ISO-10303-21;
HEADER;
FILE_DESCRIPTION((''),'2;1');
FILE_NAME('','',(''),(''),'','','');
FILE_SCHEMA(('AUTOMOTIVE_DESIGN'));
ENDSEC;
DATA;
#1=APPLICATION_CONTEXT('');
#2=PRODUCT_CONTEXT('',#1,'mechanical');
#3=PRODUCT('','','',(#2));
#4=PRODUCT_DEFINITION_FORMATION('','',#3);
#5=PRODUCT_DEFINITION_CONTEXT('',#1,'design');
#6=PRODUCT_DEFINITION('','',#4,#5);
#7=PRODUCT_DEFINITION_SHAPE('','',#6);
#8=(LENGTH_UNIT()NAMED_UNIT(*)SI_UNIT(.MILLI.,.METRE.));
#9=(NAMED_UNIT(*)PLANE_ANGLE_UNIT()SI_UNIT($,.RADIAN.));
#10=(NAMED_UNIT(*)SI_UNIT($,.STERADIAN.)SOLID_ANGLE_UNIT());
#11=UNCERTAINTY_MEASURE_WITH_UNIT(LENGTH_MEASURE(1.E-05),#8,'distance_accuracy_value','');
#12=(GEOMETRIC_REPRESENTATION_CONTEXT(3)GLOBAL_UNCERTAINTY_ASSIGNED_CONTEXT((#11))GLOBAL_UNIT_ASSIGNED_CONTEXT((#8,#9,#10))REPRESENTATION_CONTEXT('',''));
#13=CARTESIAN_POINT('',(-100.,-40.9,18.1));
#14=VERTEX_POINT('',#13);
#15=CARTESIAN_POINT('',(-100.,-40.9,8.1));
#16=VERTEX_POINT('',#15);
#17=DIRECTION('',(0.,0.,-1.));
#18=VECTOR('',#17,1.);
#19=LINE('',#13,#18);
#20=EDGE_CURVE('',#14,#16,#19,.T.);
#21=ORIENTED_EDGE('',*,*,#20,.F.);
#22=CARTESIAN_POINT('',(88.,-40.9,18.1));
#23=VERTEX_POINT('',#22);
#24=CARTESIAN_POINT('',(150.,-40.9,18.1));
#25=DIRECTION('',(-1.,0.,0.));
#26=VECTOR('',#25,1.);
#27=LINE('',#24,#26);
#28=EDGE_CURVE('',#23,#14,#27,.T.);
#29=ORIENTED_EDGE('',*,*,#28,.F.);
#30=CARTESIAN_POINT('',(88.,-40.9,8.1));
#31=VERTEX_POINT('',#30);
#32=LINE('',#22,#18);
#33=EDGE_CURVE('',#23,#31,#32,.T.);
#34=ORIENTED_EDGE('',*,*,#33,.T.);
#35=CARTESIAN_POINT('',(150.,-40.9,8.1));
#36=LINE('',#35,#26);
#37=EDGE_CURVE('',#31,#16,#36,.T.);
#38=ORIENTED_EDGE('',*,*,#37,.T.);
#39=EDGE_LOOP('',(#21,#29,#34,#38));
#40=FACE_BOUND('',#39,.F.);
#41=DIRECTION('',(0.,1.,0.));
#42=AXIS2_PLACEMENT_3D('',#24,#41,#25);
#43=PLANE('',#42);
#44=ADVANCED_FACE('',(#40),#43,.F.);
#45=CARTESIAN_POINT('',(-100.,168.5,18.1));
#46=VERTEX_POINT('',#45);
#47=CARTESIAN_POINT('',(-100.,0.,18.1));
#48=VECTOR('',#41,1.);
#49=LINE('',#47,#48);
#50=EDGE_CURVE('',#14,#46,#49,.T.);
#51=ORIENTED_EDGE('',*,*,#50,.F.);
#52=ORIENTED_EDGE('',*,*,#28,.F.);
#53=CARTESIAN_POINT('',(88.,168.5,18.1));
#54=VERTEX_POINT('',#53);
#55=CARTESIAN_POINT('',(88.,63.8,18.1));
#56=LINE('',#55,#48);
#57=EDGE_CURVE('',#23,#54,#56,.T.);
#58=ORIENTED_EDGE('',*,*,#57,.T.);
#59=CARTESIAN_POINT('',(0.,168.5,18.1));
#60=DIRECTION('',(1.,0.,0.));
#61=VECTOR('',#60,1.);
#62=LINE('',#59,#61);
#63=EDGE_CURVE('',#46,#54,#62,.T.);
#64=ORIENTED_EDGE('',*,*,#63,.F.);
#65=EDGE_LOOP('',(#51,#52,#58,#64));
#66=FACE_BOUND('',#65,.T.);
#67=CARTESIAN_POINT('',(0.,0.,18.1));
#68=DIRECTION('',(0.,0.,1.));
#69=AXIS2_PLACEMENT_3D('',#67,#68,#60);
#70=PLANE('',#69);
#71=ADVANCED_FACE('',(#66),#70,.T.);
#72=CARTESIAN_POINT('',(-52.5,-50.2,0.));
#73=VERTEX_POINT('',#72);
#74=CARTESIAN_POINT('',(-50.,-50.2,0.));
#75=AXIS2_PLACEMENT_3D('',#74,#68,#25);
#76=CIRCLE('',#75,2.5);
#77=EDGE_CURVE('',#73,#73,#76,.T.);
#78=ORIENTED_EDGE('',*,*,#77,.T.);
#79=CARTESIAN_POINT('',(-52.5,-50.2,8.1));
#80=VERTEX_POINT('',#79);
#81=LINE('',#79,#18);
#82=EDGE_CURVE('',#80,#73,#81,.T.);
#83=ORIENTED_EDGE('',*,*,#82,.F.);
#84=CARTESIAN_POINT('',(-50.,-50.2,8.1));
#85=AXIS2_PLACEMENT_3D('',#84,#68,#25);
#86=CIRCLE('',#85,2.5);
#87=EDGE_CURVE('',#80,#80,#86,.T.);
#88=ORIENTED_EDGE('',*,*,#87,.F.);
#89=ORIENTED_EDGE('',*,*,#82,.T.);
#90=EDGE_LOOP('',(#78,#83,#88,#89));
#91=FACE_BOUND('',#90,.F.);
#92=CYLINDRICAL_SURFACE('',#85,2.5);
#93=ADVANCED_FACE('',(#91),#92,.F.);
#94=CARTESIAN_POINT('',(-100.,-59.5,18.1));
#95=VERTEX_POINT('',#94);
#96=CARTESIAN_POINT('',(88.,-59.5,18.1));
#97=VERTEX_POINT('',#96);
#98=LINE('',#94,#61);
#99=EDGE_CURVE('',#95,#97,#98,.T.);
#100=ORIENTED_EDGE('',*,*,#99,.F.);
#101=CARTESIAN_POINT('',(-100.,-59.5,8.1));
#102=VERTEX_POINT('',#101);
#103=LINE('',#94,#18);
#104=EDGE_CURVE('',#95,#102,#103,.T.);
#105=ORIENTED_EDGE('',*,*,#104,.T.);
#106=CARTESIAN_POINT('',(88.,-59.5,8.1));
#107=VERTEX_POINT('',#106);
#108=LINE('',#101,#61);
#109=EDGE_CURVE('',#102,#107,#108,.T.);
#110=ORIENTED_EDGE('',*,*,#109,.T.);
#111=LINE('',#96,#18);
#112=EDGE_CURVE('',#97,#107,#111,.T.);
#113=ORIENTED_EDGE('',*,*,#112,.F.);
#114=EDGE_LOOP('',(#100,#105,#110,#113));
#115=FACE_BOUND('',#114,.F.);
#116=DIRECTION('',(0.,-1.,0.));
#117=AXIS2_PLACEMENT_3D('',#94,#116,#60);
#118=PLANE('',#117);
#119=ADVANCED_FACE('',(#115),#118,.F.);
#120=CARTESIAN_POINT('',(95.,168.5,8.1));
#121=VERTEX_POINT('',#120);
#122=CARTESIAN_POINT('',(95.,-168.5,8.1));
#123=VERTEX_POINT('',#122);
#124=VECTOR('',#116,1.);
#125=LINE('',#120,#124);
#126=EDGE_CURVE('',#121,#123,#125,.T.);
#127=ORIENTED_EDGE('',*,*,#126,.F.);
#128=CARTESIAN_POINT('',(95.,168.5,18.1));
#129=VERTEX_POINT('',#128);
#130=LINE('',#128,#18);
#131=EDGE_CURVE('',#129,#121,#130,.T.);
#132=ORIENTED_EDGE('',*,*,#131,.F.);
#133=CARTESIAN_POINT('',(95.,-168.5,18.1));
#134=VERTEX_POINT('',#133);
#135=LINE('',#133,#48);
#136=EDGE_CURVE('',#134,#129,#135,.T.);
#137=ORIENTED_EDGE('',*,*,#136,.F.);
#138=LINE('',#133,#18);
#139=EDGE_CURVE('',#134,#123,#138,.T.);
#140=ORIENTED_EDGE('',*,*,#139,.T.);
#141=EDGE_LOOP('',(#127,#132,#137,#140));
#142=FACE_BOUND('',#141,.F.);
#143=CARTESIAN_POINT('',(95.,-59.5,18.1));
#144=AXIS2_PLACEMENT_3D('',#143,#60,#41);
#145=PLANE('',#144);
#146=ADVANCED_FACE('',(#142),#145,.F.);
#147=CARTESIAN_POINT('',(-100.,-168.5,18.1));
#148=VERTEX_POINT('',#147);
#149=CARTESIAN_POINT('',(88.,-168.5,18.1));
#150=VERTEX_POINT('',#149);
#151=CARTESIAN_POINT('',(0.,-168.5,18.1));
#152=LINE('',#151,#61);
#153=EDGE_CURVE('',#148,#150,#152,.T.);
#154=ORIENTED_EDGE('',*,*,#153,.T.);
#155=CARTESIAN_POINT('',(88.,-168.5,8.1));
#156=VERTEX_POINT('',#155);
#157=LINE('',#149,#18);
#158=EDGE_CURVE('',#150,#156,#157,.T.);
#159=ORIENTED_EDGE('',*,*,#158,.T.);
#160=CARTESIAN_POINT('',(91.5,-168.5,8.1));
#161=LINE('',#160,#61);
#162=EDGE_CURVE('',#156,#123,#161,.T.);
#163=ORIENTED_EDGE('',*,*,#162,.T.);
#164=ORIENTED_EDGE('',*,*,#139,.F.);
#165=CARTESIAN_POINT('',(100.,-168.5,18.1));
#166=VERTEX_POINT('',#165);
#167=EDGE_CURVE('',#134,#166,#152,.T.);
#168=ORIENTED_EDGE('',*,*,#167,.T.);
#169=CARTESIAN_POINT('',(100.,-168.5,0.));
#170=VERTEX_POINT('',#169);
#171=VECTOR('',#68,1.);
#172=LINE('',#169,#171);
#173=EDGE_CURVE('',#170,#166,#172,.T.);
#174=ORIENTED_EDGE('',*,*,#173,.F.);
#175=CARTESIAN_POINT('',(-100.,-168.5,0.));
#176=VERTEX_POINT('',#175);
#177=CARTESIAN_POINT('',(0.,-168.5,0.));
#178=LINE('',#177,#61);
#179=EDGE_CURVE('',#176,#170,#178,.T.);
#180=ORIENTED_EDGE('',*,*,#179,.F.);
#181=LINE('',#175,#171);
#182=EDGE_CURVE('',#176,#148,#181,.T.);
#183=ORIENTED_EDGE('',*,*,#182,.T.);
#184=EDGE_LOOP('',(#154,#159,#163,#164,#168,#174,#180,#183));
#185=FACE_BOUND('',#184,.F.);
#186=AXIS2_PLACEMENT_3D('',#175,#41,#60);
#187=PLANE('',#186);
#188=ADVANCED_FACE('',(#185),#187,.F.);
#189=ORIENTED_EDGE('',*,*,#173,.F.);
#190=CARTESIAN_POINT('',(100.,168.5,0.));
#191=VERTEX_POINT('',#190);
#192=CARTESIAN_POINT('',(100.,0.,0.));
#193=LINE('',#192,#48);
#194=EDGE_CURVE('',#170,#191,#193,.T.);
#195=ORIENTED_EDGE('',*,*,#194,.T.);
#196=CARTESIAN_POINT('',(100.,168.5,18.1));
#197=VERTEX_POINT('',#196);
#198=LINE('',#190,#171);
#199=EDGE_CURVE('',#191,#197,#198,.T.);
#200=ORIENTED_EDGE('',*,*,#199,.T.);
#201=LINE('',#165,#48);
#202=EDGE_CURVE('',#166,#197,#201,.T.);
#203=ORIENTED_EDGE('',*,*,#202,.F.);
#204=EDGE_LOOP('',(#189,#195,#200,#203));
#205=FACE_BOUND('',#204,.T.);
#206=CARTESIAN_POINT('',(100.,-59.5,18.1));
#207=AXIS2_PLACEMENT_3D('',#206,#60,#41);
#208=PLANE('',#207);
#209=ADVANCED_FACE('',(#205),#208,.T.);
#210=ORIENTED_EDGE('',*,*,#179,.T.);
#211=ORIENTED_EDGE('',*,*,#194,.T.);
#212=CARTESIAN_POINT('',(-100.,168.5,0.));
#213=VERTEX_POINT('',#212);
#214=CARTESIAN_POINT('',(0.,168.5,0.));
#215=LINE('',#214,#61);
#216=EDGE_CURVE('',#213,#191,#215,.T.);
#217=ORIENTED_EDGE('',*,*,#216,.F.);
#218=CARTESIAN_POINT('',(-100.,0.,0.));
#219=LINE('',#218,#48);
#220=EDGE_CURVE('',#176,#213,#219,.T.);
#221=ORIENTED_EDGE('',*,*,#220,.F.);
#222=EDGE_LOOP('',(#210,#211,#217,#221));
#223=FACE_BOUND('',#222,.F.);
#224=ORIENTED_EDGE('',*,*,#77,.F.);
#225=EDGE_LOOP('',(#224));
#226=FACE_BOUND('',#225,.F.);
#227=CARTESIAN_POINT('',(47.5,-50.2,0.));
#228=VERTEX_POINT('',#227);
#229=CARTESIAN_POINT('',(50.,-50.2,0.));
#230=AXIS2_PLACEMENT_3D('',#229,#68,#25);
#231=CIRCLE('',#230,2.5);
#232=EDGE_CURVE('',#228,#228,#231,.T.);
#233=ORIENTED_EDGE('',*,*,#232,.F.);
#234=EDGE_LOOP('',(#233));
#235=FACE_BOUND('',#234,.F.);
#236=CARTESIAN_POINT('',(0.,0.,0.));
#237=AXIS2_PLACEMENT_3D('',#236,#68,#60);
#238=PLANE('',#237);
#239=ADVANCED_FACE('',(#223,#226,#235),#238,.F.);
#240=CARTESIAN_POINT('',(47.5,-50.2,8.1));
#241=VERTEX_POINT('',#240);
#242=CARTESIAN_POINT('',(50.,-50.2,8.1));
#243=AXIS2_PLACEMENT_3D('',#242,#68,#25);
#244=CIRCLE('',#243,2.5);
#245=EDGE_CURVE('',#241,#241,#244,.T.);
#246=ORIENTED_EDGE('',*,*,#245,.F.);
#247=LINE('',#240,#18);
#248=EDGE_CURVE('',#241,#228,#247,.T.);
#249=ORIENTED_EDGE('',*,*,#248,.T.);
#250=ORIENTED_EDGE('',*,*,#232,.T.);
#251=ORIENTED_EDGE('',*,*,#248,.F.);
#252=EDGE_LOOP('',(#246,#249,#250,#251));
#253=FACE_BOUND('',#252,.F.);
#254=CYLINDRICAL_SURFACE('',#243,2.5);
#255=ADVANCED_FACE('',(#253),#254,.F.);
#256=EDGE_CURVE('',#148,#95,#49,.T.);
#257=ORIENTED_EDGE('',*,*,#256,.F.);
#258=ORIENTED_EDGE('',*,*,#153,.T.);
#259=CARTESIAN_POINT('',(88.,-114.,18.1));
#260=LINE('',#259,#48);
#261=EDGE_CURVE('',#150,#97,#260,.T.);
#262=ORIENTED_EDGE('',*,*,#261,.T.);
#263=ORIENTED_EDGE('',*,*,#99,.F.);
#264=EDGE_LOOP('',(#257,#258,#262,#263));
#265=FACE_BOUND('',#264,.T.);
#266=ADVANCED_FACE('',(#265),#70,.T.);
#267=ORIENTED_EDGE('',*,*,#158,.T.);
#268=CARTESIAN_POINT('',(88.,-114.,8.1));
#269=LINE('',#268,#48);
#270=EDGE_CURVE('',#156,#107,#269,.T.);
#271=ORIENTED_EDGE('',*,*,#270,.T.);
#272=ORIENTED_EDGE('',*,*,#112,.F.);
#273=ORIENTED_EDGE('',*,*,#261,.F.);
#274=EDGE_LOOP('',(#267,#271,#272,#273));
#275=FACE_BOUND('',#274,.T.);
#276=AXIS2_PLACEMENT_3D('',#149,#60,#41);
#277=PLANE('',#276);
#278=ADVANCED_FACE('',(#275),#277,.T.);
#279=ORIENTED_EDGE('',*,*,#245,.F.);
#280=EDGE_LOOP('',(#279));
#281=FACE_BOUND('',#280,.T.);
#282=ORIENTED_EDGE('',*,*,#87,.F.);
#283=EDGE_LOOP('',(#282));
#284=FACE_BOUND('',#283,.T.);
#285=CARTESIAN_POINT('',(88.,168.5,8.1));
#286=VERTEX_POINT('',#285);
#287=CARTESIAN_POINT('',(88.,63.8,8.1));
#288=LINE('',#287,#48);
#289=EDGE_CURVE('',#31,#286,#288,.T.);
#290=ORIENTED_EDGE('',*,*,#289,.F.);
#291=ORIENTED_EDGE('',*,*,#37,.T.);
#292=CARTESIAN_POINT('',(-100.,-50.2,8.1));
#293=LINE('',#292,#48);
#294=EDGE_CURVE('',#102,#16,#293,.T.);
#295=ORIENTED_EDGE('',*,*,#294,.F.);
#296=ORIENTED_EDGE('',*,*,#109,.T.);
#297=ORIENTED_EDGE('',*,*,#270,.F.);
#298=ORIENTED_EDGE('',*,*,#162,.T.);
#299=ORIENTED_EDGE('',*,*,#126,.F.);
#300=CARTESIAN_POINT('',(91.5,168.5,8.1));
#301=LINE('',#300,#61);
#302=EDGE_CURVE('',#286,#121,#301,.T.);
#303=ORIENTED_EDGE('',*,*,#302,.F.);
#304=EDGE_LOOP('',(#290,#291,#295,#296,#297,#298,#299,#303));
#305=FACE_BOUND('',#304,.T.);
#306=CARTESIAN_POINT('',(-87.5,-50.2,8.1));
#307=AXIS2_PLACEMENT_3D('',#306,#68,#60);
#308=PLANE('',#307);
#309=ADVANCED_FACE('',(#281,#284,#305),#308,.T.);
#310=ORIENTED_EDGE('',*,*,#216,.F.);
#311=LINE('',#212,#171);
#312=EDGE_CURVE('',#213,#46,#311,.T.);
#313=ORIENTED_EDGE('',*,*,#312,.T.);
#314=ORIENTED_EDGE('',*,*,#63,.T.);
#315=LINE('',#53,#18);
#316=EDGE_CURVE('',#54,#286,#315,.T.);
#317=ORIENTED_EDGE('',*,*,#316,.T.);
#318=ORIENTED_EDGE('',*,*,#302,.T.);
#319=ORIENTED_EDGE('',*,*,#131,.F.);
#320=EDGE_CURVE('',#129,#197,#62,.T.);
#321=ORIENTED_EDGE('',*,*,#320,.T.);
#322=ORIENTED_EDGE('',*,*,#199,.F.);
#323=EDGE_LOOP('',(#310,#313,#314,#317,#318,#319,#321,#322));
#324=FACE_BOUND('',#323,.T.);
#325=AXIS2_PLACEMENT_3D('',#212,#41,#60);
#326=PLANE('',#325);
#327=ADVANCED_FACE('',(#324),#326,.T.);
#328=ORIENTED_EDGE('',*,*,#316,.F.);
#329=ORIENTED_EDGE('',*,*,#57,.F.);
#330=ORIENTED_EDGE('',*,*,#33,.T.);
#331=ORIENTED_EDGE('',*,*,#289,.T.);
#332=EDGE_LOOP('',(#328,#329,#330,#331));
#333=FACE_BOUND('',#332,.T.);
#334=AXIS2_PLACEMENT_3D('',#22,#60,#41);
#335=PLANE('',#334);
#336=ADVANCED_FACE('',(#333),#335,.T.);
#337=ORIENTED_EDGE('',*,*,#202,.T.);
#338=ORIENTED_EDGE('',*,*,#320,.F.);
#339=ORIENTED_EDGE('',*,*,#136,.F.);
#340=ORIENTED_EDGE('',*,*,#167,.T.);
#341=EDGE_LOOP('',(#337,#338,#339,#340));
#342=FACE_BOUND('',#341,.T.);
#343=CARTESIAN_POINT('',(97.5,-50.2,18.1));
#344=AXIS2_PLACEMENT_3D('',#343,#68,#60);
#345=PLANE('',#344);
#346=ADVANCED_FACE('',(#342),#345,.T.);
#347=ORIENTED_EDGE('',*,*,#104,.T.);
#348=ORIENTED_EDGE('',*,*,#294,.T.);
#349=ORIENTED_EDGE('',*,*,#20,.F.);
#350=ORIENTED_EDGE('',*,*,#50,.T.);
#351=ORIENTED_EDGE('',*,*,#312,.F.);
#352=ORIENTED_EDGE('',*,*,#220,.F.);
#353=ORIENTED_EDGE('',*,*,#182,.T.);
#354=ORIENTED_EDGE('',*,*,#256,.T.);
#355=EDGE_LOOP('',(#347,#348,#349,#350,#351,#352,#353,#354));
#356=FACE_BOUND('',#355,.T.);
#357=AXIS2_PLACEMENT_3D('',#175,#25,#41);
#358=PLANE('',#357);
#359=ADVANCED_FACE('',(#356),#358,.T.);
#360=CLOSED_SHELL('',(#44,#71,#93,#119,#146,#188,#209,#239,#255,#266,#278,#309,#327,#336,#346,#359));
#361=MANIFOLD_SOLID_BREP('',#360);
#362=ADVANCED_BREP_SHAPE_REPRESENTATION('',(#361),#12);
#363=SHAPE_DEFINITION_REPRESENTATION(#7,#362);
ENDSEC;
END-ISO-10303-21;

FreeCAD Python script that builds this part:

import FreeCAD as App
import Part
import Sketcher

V = App.Vector


def add_polygon(sketch, points):
    """Adds a closed chain of lines whose ends are joined by coincident constraints."""
    first, n = sketch.GeometryCount, len(points)
    for a, b in zip(points, points[1:] + points[:1]):
        sketch.addGeometry(Part.LineSegment(App.Vector(*a, 0), App.Vector(*b, 0)), False)
    for i in range(n):
        sketch.addConstraint(Sketcher.Constraint("Coincident", first + i, 2, first + (i + 1) % n, 1))

doc = App.newDocument("Part")
body = doc.addObject("PartDesign::Body", "Body")

sketch1 = body.newObject("Sketcher::SketchObject", "Sketch")
sketch1.AttachmentSupport = (doc.getObject("XY_Plane"), [""])
sketch1.MapMode = "FlatFace"
add_polygon(sketch1, [(-100, 168), (-100, -168), (100, -168), (100, 168)])
sketch1.addConstraint(Sketcher.Constraint("Vertical", 0))
sketch1.addConstraint(Sketcher.Constraint("Horizontal", 1))
sketch1.addConstraint(Sketcher.Constraint("Vertical", 2))
sketch1.addConstraint(Sketcher.Constraint("Horizontal", 3))
sketch1.addConstraint(Sketcher.Constraint("Symmetric", 0, 2, 2, 2, -1, 1))
sketch1.addConstraint(Sketcher.Constraint("DistanceX", 1, 1, 1, 2, 200.0))
sketch1.addConstraint(Sketcher.Constraint("DistanceY", 0, 2, 0, 1, 337.0))
pad1 = body.newObject("PartDesign::Pad", "Pad")
pad1.Profile = sketch1
pad1.Length = 18.1

sketch2 = body.newObject("Sketcher::SketchObject", "Sketch001")
sketch2.AttachmentSupport = (doc.getObject("XY_Plane"), [""])
sketch2.MapMode = "FlatFace"
sketch2.AttachmentOffset = App.Placement(V(0, 0, 18.1), App.Rotation())
add_polygon(sketch2, [(-100, -41), (-100, -60), (150, -60), (150, -41)])
sketch2.addConstraint(Sketcher.Constraint("Vertical", 0))
sketch2.addConstraint(Sketcher.Constraint("Horizontal", 1))
sketch2.addConstraint(Sketcher.Constraint("Vertical", 2))
sketch2.addConstraint(Sketcher.Constraint("Horizontal", 3))
sketch2.addConstraint(Sketcher.Constraint("DistanceX", 1, 1, 1, 2, 250.0))
sketch2.addConstraint(Sketcher.Constraint("DistanceY", 0, 2, 0, 1, 18.6))
sketch2.addConstraint(Sketcher.Constraint("DistanceX", 0, 2, -1, 1, 100.0))
sketch2.addConstraint(Sketcher.Constraint("DistanceY", 0, 2, -1, 1, 59.5))
pocket1 = body.newObject("PartDesign::Pocket", "Pocket")
pocket1.Profile = sketch2
pocket1.Length = 10

sketch3 = body.newObject("Sketcher::SketchObject", "Sketch002")
sketch3.AttachmentSupport = (doc.getObject("XY_Plane"), [""])
sketch3.MapMode = "FlatFace"
sketch3.AttachmentOffset = App.Placement(V(0, 0, 8.1), App.Rotation())
sketch3.addGeometry(Part.Circle(V(-50, -50.2, 0), V(0, 0, 1), 2.5), False)
sketch3.addGeometry(Part.Circle(V(50, -50.2, 0), V(0, 0, 1), 2.5), False)
sketch3.addConstraint(Sketcher.Constraint("Equal", 0, 1))
sketch3.addConstraint(Sketcher.Constraint("Symmetric", 0, 3, 1, 3, -2))
sketch3.addConstraint(Sketcher.Constraint("Diameter", 0, 5.0))
sketch3.addConstraint(Sketcher.Constraint("DistanceX", 0, 3, -1, 1, 50.0))
sketch3.addConstraint(Sketcher.Constraint("DistanceY", 0, 3, -1, 1, 50.2))
pocket2 = body.newObject("PartDesign::Pocket", "Pocket001")
pocket2.Profile = sketch3
pocket2.Length = 25

sketch4 = body.newObject("Sketcher::SketchObject", "Sketch003")
sketch4.AttachmentSupport = (doc.getObject("XY_Plane"), [""])
sketch4.MapMode = "FlatFace"
sketch4.AttachmentOffset = App.Placement(V(0, 0, 18.1), App.Rotation())
add_polygon(sketch4, [(88, -60), (88, -168), (95, -168), (95, -60)])
add_polygon(sketch4, [(88, 168), (88, -41), (95, -41), (95, 168)])
sketch4.addConstraint(Sketcher.Constraint("Vertical", 0))
sketch4.addConstraint(Sketcher.Constraint("Horizontal", 1))
sketch4.addConstraint(Sketcher.Constraint("Vertical", 2))
sketch4.addConstraint(Sketcher.Constraint("Horizontal", 3))
sketch4.addConstraint(Sketcher.Constraint("Vertical", 4))
sketch4.addConstraint(Sketcher.Constraint("Horizontal", 5))
sketch4.addConstraint(Sketcher.Constraint("Vertical", 6))
sketch4.addConstraint(Sketcher.Constraint("Horizontal", 7))
sketch4.addConstraint(Sketcher.Constraint("Symmetric", 1, 2, 6, 2, -1))
sketch4.addConstraint(Sketcher.Constraint("Vertical", 3, 2, 4, 2))
sketch4.addConstraint(Sketcher.Constraint("DistanceX", 1, 1, 1, 2, 7.0))
sketch4.addConstraint(Sketcher.Constraint("DistanceY", 0, 2, 0, 1, 109.0))
sketch4.addConstraint(Sketcher.Constraint("DistanceY", 4, 2, 4, 1, 209.4))
sketch4.addConstraint(Sketcher.Constraint("DistanceX", -1, 1, 0, 2, 88.0))
sketch4.addConstraint(Sketcher.Constraint("DistanceY", 2, 2, 6, 2, 228.0))
pocket3 = body.newObject("PartDesign::Pocket", "Pocket002")
pocket3.Profile = sketch4
pocket3.Length = 10

sketch5 = body.newObject("Sketcher::SketchObject", "Sketch004")
sketch5.AttachmentSupport = (doc.getObject("XY_Plane"), [""])
sketch5.MapMode = "FlatFace"
sketch5.AttachmentOffset = App.Placement(V(0, 0, 18.1), App.Rotation())
add_polygon(sketch5, [(95, -41), (95, -60), (100, -60), (100, -41)])
sketch5.addConstraint(Sketcher.Constraint("Vertical", 0))
sketch5.addConstraint(Sketcher.Constraint("Horizontal", 1))
sketch5.addConstraint(Sketcher.Constraint("Vertical", 2))
sketch5.addConstraint(Sketcher.Constraint("Horizontal", 3))
sketch5.addConstraint(Sketcher.Constraint("DistanceX", 1, 1, 1, 2, 5.0))
sketch5.addConstraint(Sketcher.Constraint("DistanceY", 0, 2, 0, 1, 18.6))
sketch5.addConstraint(Sketcher.Constraint("DistanceX", -1, 1, 0, 2, 95.0))
sketch5.addConstraint(Sketcher.Constraint("DistanceY", 0, 2, -1, 1, 59.5))
pad2 = body.newObject("PartDesign::Pad", "Pad001")
pad2.Profile = sketch5
pad2.Length = 15.1
pad2.Reversed = True

doc.recompute()
